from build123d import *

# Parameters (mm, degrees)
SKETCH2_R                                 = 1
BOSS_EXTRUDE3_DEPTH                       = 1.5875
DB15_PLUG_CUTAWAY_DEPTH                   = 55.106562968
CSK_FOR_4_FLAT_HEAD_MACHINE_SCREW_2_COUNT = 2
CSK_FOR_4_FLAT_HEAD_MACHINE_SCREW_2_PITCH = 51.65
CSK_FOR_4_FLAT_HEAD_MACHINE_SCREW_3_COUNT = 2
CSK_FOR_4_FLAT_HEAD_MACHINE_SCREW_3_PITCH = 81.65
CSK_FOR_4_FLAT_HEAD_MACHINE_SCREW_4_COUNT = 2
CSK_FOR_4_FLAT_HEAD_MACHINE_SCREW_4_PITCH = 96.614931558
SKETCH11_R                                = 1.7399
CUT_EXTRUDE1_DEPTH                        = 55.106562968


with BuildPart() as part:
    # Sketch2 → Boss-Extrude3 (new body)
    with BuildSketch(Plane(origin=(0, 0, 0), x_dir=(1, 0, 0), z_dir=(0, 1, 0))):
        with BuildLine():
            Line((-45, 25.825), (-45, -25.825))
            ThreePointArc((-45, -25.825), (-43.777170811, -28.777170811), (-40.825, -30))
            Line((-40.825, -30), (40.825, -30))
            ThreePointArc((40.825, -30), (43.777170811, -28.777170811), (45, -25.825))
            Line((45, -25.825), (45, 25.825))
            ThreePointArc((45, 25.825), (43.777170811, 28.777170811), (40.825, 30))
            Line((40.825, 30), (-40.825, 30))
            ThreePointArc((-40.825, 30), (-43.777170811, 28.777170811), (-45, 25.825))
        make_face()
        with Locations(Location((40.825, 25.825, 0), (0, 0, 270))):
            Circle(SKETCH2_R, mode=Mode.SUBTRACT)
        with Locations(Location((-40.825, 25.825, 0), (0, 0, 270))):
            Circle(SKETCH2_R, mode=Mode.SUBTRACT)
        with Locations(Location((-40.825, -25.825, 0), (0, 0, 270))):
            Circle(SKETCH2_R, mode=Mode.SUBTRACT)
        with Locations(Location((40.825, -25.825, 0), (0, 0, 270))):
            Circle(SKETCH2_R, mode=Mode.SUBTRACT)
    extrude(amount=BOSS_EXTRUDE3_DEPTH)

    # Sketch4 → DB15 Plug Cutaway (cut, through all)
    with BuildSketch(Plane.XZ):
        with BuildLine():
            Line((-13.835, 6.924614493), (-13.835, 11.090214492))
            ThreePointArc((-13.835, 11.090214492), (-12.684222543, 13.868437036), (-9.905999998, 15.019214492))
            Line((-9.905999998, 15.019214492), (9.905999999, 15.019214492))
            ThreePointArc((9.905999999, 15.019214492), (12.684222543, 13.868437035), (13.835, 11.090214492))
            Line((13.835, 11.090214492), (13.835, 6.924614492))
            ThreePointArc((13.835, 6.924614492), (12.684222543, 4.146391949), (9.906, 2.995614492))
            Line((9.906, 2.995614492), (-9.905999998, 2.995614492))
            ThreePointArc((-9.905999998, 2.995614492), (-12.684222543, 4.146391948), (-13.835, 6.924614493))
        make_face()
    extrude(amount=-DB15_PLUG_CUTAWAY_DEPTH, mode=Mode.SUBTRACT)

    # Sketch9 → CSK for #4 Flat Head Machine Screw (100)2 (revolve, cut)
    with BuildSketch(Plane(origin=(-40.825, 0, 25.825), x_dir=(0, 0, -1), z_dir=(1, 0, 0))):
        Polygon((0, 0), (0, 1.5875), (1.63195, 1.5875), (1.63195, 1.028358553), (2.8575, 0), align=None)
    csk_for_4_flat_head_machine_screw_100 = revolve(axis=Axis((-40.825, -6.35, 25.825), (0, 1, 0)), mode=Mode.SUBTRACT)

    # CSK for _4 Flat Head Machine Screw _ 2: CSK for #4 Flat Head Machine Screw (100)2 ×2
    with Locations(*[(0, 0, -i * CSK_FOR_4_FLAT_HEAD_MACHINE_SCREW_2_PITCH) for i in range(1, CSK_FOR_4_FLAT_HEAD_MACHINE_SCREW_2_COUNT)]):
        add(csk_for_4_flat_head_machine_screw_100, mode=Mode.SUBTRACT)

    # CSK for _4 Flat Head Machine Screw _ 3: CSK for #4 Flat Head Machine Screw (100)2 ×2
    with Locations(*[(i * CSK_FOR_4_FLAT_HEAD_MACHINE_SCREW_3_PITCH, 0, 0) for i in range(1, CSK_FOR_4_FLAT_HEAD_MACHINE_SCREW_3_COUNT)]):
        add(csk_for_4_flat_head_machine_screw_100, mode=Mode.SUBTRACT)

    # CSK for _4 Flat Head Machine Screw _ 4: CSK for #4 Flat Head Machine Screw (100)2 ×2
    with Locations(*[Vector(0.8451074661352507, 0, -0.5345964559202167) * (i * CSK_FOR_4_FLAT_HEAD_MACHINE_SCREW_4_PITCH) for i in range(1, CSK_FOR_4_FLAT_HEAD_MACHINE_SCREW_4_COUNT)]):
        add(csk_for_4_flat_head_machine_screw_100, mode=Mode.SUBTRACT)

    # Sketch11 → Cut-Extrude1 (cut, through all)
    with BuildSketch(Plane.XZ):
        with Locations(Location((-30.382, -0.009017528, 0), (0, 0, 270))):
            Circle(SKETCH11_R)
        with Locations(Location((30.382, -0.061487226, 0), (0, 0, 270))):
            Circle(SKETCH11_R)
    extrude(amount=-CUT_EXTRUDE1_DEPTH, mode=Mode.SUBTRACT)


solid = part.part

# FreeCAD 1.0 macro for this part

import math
import FreeCAD as App
import Part
import Sketcher
from FreeCAD import Vector
Q = App.Units.Quantity

doc = App.newDocument("Part")
params = doc.addObject("Spreadsheet::Sheet", "Params")
for row, (alias, value) in enumerate([
    ("pad1_length", "0.0625 in"),
    ("sketch2_width", "0.78 in"),
    ("sketch2_height", "0.164 in"),
    ("sketch3_width", "0.0625 in"),
    ("groove_angle", "360 deg"),
    ("linearpattern_pitch", "51.65 mm"),
    ("linearpattern2_pitch", "81.65 mm"),
    ("linearpattern3_pitch", "96.614932 mm"),
    ("sketch4_diameter", "0.137 in"),
], start=1):
    params.set(f"A{row}", alias)
    params.set(f"B{row}", "=" + value)
    params.setAlias(f"B{row}", alias)

body = doc.addObject("PartDesign::Body", "Body")

# Sketch on XZ plane
sketch1 = body.newObject("Sketcher::SketchObject", "Sketch")
sketch1.AttachmentSupport = (doc.getObject("XZ_Plane"), [""])
sketch1.MapMode = "FlatFace"
sketch1.addGeometry([
    Part.LineSegment(Vector(-45, -25.8, 0), Vector(-45, 25.8, 0)),  # 0
    Part.ArcOfCircle(Part.Circle(Vector(-40.8, 25.8, 0), Vector(0, 0, 1), 4.2), math.radians(90), math.radians(180)),  # 1
    Part.LineSegment(Vector(-40.8, 30, 0), Vector(40.8, 30, 0)),  # 2
    Part.ArcOfCircle(Part.Circle(Vector(40.8, 25.8, 0), Vector(0, 0, 1), 4.2), math.radians(0), math.radians(90)),  # 3
    Part.LineSegment(Vector(45, 25.8, 0), Vector(45, -25.8, 0)),  # 4
    Part.ArcOfCircle(Part.Circle(Vector(40.8, -25.8, 0), Vector(0, 0, 1), 4.2), math.radians(-90), math.radians(0)),  # 5
    Part.LineSegment(Vector(40.8, -30, 0), Vector(-40.8, -30, 0)),  # 6
    Part.ArcOfCircle(Part.Circle(Vector(-40.8, -25.8, 0), Vector(0, 0, 1), 4.2), math.radians(-180), math.radians(-90)),  # 7
    Part.Circle(Vector(-40.8, 25.8, 0), Vector(0, 0, 1), 1),  # 8
    Part.Circle(Vector(40.8, 25.8, 0), Vector(0, 0, 1), 1),  # 9
    Part.Circle(Vector(-40.8, -25.8, 0), Vector(0, 0, 1), 1),  # 10
    Part.Circle(Vector(40.8, -25.8, 0), Vector(0, 0, 1), 1),  # 11
], False)
sketch1.addConstraint([
    Sketcher.Constraint("Tangent", 0, 2, 1, 2),
    Sketcher.Constraint("Tangent", 1, 1, 2, 1),
    Sketcher.Constraint("Tangent", 2, 2, 3, 2),
    Sketcher.Constraint("Tangent", 3, 1, 4, 1),
    Sketcher.Constraint("Tangent", 4, 2, 5, 2),
    Sketcher.Constraint("Tangent", 5, 1, 6, 1),
    Sketcher.Constraint("Tangent", 6, 2, 7, 2),
    Sketcher.Constraint("Tangent", 7, 1, 0, 1),
    Sketcher.Constraint("Vertical", 0),
    Sketcher.Constraint("Horizontal", 2),
    Sketcher.Constraint("Vertical", 4),
    Sketcher.Constraint("Horizontal", 6),
    Sketcher.Constraint("Coincident", 8, 3, 1, 3),
    Sketcher.Constraint("Coincident", 9, 3, 3, 3),
    Sketcher.Constraint("Coincident", 10, 3, 7, 3),
    Sketcher.Constraint("Coincident", 11, 3, 5, 3),
    Sketcher.Constraint("Equal", 1, 3),
    Sketcher.Constraint("Equal", 3, 5),
    Sketcher.Constraint("Equal", 5, 7),
    Sketcher.Constraint("Equal", 8, 9),
    Sketcher.Constraint("Equal", 9, 10),
    Sketcher.Constraint("Equal", 10, 11),
    Sketcher.Constraint("Symmetric", 1, 3, 5, 3, -1, 1),
    Sketcher.Constraint("Diameter", 8, Q("2 mm")),
    Sketcher.Constraint("Radius", 1, Q("4.175 mm")),
    Sketcher.Constraint("DistanceX", 2, 1, 2, 2, Q("81.65 mm")),
    Sketcher.Constraint("DistanceY", 0, 1, 0, 2, Q("51.65 mm")),
])
pad1 = body.newObject("PartDesign::Pad", "Pad")
pad1.Profile = sketch1
pad1.setExpression("Length", "Params.pad1_length")
pad1.Reversed = True

# Sketch on XZ plane
sketch2 = body.newObject("Sketcher::SketchObject", "Sketch001")
sketch2.AttachmentSupport = (doc.getObject("XZ_Plane"), [""])
sketch2.MapMode = "FlatFace"
sketch2.addGeometry([
    Part.LineSegment(Vector(-13.8, 11.1, 0), Vector(-13.8, 6.9, 0)),  # 0
    Part.ArcOfCircle(Part.Circle(Vector(-9.9, 6.9, 0), Vector(0, 0, 1), 3.9), math.radians(180), math.radians(270)),  # 1
    Part.LineSegment(Vector(-9.9, 3, 0), Vector(9.9, 3, 0)),  # 2
    Part.ArcOfCircle(Part.Circle(Vector(9.9, 6.9, 0), Vector(0, 0, 1), 3.9), math.radians(-90), math.radians(0)),  # 3
    Part.LineSegment(Vector(13.8, 6.9, 0), Vector(13.8, 11.1, 0)),  # 4
    Part.ArcOfCircle(Part.Circle(Vector(9.9, 11.1, 0), Vector(0, 0, 1), 3.9), math.radians(0), math.radians(90)),  # 5
    Part.LineSegment(Vector(9.9, 15, 0), Vector(-9.9, 15, 0)),  # 6
    Part.ArcOfCircle(Part.Circle(Vector(-9.9, 11.1, 0), Vector(0, 0, 1), 3.9), math.radians(90), math.radians(180)),  # 7
], False)
sketch2.addConstraint([
    Sketcher.Constraint("Tangent", 0, 2, 1, 1),
    Sketcher.Constraint("Tangent", 1, 2, 2, 1),
    Sketcher.Constraint("Tangent", 2, 2, 3, 1),
    Sketcher.Constraint("Tangent", 3, 2, 4, 1),
    Sketcher.Constraint("Tangent", 4, 2, 5, 1),
    Sketcher.Constraint("Tangent", 5, 2, 6, 1),
    Sketcher.Constraint("Tangent", 6, 2, 7, 1),
    Sketcher.Constraint("Tangent", 7, 2, 0, 1),
    Sketcher.Constraint("Vertical", 0),
    Sketcher.Constraint("Horizontal", 2),
    Sketcher.Constraint("Vertical", 4),
    Sketcher.Constraint("Horizontal", 6),
    Sketcher.Constraint("Equal", 1, 3),
    Sketcher.Constraint("Equal", 3, 5),
    Sketcher.Constraint("Equal", 5, 7),
    Sketcher.Constraint("DistanceX", 2, 1, 2, 2, Q("0.78 in")),
    Sketcher.Constraint("DistanceY", 0, 2, 0, 1, Q("0.164 in")),
    Sketcher.Constraint("DistanceX", 1, 3, -1, 1, Q("0.39 in")),
    Sketcher.Constraint("Radius", 1, Q("3.929 mm")),
    Sketcher.Constraint("DistanceY", -1, 1, 1, 3, Q("6.924614 mm")),
])
sketch2.setExpression("Constraints[15]", "Params.sketch2_width")
sketch2.setExpression("Constraints[16]", "Params.sketch2_height")
pocket1 = body.newObject("PartDesign::Pocket", "Pocket")
pocket1.Profile = sketch2
pocket1.Type = "ThroughAll"

# Sketch on YZ plane
sketch3 = body.newObject("Sketcher::SketchObject", "Sketch002")
sketch3.AttachmentSupport = (doc.getObject("YZ_Plane"), [""])
sketch3.MapMode = "FlatFace"
sketch3.AttachmentOffset = App.Placement(Vector(0, 0, -40.825), App.Rotation())
sketch3.addGeometry([
    Part.LineSegment(Vector(1.6, 25.8, 0), Vector(0, 25.8, 0)),  # 0
    Part.LineSegment(Vector(0, 25.8, 0), Vector(0, 23, 0)),  # 1
    Part.LineSegment(Vector(0, 23, 0), Vector(1, 24.2, 0)),  # 2
    Part.LineSegment(Vector(1, 24.2, 0), Vector(1.6, 24.2, 0)),  # 3
    Part.LineSegment(Vector(1.6, 24.2, 0), Vector(1.6, 25.8, 0)),  # 4
], False)
sketch3.addGeometry(Part.LineSegment(Vector(0, 25.8, 0), Vector(1.6, 25.8, 0)), True)  # axis
sketch3.addConstraint([
    Sketcher.Constraint("Coincident", 0, 2, 1, 1),
    Sketcher.Constraint("Coincident", 1, 2, 2, 1),
    Sketcher.Constraint("Coincident", 2, 2, 3, 1),
    Sketcher.Constraint("Coincident", 3, 2, 4, 1),
    Sketcher.Constraint("Coincident", 4, 2, 0, 1),
    Sketcher.Constraint("Horizontal", 0),
    Sketcher.Constraint("Vertical", 1),
    Sketcher.Constraint("Horizontal", 3),
    Sketcher.Constraint("Vertical", 4),
    Sketcher.Constraint("Horizontal", 5),
    Sketcher.Constraint("Coincident", 5, 1, 0, 2),
    Sketcher.Constraint("PointOnObject", 0, 2, -2),
    Sketcher.Constraint("Vertical", 3, 2, 5, 2),
    Sketcher.Constraint("Angle", 2, Q("50 deg")),
    Sketcher.Constraint("DistanceX", 0, 2, 0, 1, Q("0.0625 in")),
    Sketcher.Constraint("DistanceY", 1, 2, 1, 1, Q("0.1125 in")),
    Sketcher.Constraint("DistanceX", 3, 1, 3, 2, Q("0.559141 mm")),
    Sketcher.Constraint("DistanceY", -1, 1, 0, 2, Q("25.825 mm")),
])
sketch3.setExpression("Constraints[14]", "Params.sketch3_width")
groove = body.newObject("PartDesign::Groove", "Groove")
groove.Profile = sketch3
groove.ReferenceAxis = (sketch3, ["Axis0"])
groove.setExpression("Angle", "Params.groove_angle")
doc.recompute()

linearpattern = body.newObject("PartDesign::LinearPattern", "LinearPattern")
linearpattern.Originals = [groove]
linearpattern.Direction = (doc.getObject("Z_Axis"), [""])
linearpattern.Mode = "offset"
linearpattern.setExpression("Offset", "Params.linearpattern_pitch")
linearpattern.Occurrences = 2
linearpattern.Reversed = True
body.Tip = linearpattern
doc.recompute()

linearpattern2 = body.newObject("PartDesign::LinearPattern", "LinearPattern001")
linearpattern2.Originals = [groove]
linearpattern2.Direction = (doc.getObject("X_Axis"), [""])
linearpattern2.Mode = "offset"
linearpattern2.setExpression("Offset", "Params.linearpattern2_pitch")
linearpattern2.Occurrences = 2
body.Tip = linearpattern2
doc.recompute()

datumline = body.newObject("PartDesign::Line", "DatumLine")
datumline.Placement = App.Placement(Vector(0, 0, 0), App.Rotation(Vector(0, 0, 1), Vector(0.845107466, 0, -0.534596456)))
linearpattern3 = body.newObject("PartDesign::LinearPattern", "LinearPattern002")
linearpattern3.Originals = [groove]
linearpattern3.Direction = (datumline, [""])
linearpattern3.Mode = "offset"
linearpattern3.setExpression("Offset", "Params.linearpattern3_pitch")
linearpattern3.Occurrences = 2
body.Tip = linearpattern3

# Sketch on XZ plane
sketch4 = body.newObject("Sketcher::SketchObject", "Sketch003")
sketch4.AttachmentSupport = (doc.getObject("XZ_Plane"), [""])
sketch4.MapMode = "FlatFace"
sketch4.addGeometry([
    Part.Circle(Vector(-30.4, 0, 0), Vector(0, 0, 1), 1.7),
    Part.Circle(Vector(30.4, -0.1, 0), Vector(0, 0, 1), 1.7),
], False)
sketch4.addConstraint([
    Sketcher.Constraint("Equal", 0, 1),
    Sketcher.Constraint("Diameter", 0, Q("0.137 in")),
    Sketcher.Constraint("DistanceX", 0, 3, -1, 1, Q("30.382 mm")),
    Sketcher.Constraint("DistanceX", -1, 1, 1, 3, Q("30.382 mm")),
    Sketcher.Constraint("DistanceY", 1, 3, 0, 3, Q("0.05247 mm")),
    Sketcher.Constraint("DistanceY", 0, 3, -1, 1, Q("0.009018 mm")),
])
sketch4.setExpression("Constraints[1]", "Params.sketch4_diameter")
pocket2 = body.newObject("PartDesign::Pocket", "Pocket001")
pocket2.Profile = sketch4
pocket2.Type = "ThroughAll"

doc.recompute()
